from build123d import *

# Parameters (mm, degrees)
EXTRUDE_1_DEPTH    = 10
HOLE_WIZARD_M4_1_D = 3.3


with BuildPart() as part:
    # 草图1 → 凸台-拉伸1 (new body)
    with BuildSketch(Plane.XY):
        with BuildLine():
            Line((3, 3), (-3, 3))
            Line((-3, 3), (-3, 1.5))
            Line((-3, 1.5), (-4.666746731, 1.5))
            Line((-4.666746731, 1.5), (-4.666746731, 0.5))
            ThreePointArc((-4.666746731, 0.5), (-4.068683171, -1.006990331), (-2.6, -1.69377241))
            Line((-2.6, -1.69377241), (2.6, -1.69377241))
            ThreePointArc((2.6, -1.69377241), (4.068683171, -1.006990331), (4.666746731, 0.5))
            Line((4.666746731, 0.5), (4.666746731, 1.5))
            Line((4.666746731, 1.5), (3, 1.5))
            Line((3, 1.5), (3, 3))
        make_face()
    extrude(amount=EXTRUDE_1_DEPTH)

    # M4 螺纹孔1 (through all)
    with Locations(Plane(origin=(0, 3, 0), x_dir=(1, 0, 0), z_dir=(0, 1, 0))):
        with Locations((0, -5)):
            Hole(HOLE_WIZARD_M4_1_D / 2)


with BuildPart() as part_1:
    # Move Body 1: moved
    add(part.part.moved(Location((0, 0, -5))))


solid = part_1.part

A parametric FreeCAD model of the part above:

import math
import FreeCAD as App
import Part
import Sketcher
from FreeCAD import Vector

doc = App.newDocument("Part")
body = doc.addObject("PartDesign::Body", "Body")

# Sketch on XY plane
sketch1 = doc.addObject("Sketcher::SketchObject", "Sketch")
body.addObject(sketch1)
sketch1.AttachmentSupport = (doc.XY_Plane, [""])
sketch1.MapMode = "FlatFace"
sketch1.addGeometry([
    Part.LineSegment(Vector(3, 3, 0), Vector(-3, 3, 0)),  # 0
    Part.LineSegment(Vector(-3, 3, 0), Vector(-3, 1.5, 0)),  # 1
    Part.LineSegment(Vector(-3, 1.5, 0), Vector(-4.7, 1.5, 0)),  # 2
    Part.LineSegment(Vector(-4.7, 1.5, 0), Vector(-4.7, 0.5, 0)),  # 3
    Part.ArcOfCircle(Part.Circle(Vector(-2.5, 0.5, 0), Vector(0, 0, 1), 2.2), math.radians(-180), math.radians(-93)),  # 4
    Part.LineSegment(Vector(-2.6, -1.7, 0), Vector(2.6, -1.7, 0)),  # 5
    Part.ArcOfCircle(Part.Circle(Vector(2.5, 0.5, 0), Vector(0, 0, 1), 2.2), math.radians(-87), math.radians(0)),  # 6
    Part.LineSegment(Vector(4.7, 0.5, 0), Vector(4.7, 1.5, 0)),  # 7
    Part.LineSegment(Vector(4.7, 1.5, 0), Vector(3, 1.5, 0)),  # 8
    Part.LineSegment(Vector(3, 1.5, 0), Vector(3, 3, 0)),  # 9
], False)
sketch1.addConstraint([
    Sketcher.Constraint("Coincident", 0, 2, 1, 1),
    Sketcher.Constraint("Coincident", 1, 2, 2, 1),
    Sketcher.Constraint("Coincident", 2, 2, 3, 1),
    Sketcher.Constraint("Tangent", 3, 2, 4, 1),
    Sketcher.Constraint("Coincident", 4, 2, 5, 1),
    Sketcher.Constraint("Coincident", 5, 2, 6, 1),
    Sketcher.Constraint("Tangent", 6, 2, 7, 1),
    Sketcher.Constraint("Coincident", 7, 2, 8, 1),
    Sketcher.Constraint("Coincident", 8, 2, 9, 1),
    Sketcher.Constraint("Coincident", 9, 2, 0, 1),
    Sketcher.Constraint("Horizontal", 0),
    Sketcher.Constraint("Vertical", 1),
    Sketcher.Constraint("Horizontal", 2),
    Sketcher.Constraint("Vertical", 3),
    Sketcher.Constraint("Horizontal", 5),
    Sketcher.Constraint("Vertical", 7),
    Sketcher.Constraint("Horizontal", 8),
    Sketcher.Constraint("Vertical", 9),
    Sketcher.Constraint("Equal", 4, 6),
    Sketcher.Constraint("Symmetric", 4, 3, 6, 3, -2),
    Sketcher.Constraint("Symmetric", 1, 2, 8, 2, -2),
    Sketcher.Constraint("DistanceX", 0, 2, 0, 1, 6.0),
    Sketcher.Constraint("DistanceY", 3, 2, 3, 1, 1.0),
    Sketcher.Constraint("DistanceX", 5, 1, 5, 2, 5.2),
    Sketcher.Constraint("DistanceY", 1, 2, 1, 1, 1.5),
    Sketcher.Constraint("DistanceY", -1, 1, 0, 2, 3.0),
    Sketcher.Constraint("Radius", 4, 2.197676),
    Sketcher.Constraint("DistanceX", 2, 2, 2, 1, 1.666747),
])
pad1 = doc.addObject("PartDesign::Pad", "Pad")
body.addObject(pad1)
pad1.Profile = sketch1
pad1.Length = 10

# Sketch on XZ plane
sketch2 = doc.addObject("Sketcher::SketchObject", "Sketch001")
body.addObject(sketch2)
sketch2.AttachmentSupport = (doc.XZ_Plane, [""])
sketch2.MapMode = "FlatFace"
sketch2.AttachmentOffset = App.Placement(Vector(0, 0, -3), App.Rotation())
sketch2.addGeometry(Part.Circle(Vector(0, 5, 0), Vector(0, 0, 1), 1.6), False)
sketch2.addConstraint([
    Sketcher.Constraint("PointOnObject", 0, 3, -2),
    Sketcher.Constraint("Diameter", 0, 3.3),
    Sketcher.Constraint("DistanceY", -1, 1, 0, 3, 5.0),
])
doc.recompute()
hole = doc.addObject("PartDesign::Hole", "Hole")
body.addObject(hole)
hole.Profile = sketch2
hole.ThreadType = "None"
hole.Diameter = 3.3
hole.DepthType = "ThroughAll"
hole.Reversed = True
body2 = doc.addObject("PartDesign::Body", "Body001")
doc.recompute()

body.Placement = App.Placement(Vector(0, 0, -5), App.Rotation(Vector(0, 0, 1), 0))
boolean = doc.addObject("PartDesign::Boolean", "Boolean")
body2.addObject(boolean)
boolean.Type = "Fuse"
boolean.addObjects([body])

doc.recompute()
